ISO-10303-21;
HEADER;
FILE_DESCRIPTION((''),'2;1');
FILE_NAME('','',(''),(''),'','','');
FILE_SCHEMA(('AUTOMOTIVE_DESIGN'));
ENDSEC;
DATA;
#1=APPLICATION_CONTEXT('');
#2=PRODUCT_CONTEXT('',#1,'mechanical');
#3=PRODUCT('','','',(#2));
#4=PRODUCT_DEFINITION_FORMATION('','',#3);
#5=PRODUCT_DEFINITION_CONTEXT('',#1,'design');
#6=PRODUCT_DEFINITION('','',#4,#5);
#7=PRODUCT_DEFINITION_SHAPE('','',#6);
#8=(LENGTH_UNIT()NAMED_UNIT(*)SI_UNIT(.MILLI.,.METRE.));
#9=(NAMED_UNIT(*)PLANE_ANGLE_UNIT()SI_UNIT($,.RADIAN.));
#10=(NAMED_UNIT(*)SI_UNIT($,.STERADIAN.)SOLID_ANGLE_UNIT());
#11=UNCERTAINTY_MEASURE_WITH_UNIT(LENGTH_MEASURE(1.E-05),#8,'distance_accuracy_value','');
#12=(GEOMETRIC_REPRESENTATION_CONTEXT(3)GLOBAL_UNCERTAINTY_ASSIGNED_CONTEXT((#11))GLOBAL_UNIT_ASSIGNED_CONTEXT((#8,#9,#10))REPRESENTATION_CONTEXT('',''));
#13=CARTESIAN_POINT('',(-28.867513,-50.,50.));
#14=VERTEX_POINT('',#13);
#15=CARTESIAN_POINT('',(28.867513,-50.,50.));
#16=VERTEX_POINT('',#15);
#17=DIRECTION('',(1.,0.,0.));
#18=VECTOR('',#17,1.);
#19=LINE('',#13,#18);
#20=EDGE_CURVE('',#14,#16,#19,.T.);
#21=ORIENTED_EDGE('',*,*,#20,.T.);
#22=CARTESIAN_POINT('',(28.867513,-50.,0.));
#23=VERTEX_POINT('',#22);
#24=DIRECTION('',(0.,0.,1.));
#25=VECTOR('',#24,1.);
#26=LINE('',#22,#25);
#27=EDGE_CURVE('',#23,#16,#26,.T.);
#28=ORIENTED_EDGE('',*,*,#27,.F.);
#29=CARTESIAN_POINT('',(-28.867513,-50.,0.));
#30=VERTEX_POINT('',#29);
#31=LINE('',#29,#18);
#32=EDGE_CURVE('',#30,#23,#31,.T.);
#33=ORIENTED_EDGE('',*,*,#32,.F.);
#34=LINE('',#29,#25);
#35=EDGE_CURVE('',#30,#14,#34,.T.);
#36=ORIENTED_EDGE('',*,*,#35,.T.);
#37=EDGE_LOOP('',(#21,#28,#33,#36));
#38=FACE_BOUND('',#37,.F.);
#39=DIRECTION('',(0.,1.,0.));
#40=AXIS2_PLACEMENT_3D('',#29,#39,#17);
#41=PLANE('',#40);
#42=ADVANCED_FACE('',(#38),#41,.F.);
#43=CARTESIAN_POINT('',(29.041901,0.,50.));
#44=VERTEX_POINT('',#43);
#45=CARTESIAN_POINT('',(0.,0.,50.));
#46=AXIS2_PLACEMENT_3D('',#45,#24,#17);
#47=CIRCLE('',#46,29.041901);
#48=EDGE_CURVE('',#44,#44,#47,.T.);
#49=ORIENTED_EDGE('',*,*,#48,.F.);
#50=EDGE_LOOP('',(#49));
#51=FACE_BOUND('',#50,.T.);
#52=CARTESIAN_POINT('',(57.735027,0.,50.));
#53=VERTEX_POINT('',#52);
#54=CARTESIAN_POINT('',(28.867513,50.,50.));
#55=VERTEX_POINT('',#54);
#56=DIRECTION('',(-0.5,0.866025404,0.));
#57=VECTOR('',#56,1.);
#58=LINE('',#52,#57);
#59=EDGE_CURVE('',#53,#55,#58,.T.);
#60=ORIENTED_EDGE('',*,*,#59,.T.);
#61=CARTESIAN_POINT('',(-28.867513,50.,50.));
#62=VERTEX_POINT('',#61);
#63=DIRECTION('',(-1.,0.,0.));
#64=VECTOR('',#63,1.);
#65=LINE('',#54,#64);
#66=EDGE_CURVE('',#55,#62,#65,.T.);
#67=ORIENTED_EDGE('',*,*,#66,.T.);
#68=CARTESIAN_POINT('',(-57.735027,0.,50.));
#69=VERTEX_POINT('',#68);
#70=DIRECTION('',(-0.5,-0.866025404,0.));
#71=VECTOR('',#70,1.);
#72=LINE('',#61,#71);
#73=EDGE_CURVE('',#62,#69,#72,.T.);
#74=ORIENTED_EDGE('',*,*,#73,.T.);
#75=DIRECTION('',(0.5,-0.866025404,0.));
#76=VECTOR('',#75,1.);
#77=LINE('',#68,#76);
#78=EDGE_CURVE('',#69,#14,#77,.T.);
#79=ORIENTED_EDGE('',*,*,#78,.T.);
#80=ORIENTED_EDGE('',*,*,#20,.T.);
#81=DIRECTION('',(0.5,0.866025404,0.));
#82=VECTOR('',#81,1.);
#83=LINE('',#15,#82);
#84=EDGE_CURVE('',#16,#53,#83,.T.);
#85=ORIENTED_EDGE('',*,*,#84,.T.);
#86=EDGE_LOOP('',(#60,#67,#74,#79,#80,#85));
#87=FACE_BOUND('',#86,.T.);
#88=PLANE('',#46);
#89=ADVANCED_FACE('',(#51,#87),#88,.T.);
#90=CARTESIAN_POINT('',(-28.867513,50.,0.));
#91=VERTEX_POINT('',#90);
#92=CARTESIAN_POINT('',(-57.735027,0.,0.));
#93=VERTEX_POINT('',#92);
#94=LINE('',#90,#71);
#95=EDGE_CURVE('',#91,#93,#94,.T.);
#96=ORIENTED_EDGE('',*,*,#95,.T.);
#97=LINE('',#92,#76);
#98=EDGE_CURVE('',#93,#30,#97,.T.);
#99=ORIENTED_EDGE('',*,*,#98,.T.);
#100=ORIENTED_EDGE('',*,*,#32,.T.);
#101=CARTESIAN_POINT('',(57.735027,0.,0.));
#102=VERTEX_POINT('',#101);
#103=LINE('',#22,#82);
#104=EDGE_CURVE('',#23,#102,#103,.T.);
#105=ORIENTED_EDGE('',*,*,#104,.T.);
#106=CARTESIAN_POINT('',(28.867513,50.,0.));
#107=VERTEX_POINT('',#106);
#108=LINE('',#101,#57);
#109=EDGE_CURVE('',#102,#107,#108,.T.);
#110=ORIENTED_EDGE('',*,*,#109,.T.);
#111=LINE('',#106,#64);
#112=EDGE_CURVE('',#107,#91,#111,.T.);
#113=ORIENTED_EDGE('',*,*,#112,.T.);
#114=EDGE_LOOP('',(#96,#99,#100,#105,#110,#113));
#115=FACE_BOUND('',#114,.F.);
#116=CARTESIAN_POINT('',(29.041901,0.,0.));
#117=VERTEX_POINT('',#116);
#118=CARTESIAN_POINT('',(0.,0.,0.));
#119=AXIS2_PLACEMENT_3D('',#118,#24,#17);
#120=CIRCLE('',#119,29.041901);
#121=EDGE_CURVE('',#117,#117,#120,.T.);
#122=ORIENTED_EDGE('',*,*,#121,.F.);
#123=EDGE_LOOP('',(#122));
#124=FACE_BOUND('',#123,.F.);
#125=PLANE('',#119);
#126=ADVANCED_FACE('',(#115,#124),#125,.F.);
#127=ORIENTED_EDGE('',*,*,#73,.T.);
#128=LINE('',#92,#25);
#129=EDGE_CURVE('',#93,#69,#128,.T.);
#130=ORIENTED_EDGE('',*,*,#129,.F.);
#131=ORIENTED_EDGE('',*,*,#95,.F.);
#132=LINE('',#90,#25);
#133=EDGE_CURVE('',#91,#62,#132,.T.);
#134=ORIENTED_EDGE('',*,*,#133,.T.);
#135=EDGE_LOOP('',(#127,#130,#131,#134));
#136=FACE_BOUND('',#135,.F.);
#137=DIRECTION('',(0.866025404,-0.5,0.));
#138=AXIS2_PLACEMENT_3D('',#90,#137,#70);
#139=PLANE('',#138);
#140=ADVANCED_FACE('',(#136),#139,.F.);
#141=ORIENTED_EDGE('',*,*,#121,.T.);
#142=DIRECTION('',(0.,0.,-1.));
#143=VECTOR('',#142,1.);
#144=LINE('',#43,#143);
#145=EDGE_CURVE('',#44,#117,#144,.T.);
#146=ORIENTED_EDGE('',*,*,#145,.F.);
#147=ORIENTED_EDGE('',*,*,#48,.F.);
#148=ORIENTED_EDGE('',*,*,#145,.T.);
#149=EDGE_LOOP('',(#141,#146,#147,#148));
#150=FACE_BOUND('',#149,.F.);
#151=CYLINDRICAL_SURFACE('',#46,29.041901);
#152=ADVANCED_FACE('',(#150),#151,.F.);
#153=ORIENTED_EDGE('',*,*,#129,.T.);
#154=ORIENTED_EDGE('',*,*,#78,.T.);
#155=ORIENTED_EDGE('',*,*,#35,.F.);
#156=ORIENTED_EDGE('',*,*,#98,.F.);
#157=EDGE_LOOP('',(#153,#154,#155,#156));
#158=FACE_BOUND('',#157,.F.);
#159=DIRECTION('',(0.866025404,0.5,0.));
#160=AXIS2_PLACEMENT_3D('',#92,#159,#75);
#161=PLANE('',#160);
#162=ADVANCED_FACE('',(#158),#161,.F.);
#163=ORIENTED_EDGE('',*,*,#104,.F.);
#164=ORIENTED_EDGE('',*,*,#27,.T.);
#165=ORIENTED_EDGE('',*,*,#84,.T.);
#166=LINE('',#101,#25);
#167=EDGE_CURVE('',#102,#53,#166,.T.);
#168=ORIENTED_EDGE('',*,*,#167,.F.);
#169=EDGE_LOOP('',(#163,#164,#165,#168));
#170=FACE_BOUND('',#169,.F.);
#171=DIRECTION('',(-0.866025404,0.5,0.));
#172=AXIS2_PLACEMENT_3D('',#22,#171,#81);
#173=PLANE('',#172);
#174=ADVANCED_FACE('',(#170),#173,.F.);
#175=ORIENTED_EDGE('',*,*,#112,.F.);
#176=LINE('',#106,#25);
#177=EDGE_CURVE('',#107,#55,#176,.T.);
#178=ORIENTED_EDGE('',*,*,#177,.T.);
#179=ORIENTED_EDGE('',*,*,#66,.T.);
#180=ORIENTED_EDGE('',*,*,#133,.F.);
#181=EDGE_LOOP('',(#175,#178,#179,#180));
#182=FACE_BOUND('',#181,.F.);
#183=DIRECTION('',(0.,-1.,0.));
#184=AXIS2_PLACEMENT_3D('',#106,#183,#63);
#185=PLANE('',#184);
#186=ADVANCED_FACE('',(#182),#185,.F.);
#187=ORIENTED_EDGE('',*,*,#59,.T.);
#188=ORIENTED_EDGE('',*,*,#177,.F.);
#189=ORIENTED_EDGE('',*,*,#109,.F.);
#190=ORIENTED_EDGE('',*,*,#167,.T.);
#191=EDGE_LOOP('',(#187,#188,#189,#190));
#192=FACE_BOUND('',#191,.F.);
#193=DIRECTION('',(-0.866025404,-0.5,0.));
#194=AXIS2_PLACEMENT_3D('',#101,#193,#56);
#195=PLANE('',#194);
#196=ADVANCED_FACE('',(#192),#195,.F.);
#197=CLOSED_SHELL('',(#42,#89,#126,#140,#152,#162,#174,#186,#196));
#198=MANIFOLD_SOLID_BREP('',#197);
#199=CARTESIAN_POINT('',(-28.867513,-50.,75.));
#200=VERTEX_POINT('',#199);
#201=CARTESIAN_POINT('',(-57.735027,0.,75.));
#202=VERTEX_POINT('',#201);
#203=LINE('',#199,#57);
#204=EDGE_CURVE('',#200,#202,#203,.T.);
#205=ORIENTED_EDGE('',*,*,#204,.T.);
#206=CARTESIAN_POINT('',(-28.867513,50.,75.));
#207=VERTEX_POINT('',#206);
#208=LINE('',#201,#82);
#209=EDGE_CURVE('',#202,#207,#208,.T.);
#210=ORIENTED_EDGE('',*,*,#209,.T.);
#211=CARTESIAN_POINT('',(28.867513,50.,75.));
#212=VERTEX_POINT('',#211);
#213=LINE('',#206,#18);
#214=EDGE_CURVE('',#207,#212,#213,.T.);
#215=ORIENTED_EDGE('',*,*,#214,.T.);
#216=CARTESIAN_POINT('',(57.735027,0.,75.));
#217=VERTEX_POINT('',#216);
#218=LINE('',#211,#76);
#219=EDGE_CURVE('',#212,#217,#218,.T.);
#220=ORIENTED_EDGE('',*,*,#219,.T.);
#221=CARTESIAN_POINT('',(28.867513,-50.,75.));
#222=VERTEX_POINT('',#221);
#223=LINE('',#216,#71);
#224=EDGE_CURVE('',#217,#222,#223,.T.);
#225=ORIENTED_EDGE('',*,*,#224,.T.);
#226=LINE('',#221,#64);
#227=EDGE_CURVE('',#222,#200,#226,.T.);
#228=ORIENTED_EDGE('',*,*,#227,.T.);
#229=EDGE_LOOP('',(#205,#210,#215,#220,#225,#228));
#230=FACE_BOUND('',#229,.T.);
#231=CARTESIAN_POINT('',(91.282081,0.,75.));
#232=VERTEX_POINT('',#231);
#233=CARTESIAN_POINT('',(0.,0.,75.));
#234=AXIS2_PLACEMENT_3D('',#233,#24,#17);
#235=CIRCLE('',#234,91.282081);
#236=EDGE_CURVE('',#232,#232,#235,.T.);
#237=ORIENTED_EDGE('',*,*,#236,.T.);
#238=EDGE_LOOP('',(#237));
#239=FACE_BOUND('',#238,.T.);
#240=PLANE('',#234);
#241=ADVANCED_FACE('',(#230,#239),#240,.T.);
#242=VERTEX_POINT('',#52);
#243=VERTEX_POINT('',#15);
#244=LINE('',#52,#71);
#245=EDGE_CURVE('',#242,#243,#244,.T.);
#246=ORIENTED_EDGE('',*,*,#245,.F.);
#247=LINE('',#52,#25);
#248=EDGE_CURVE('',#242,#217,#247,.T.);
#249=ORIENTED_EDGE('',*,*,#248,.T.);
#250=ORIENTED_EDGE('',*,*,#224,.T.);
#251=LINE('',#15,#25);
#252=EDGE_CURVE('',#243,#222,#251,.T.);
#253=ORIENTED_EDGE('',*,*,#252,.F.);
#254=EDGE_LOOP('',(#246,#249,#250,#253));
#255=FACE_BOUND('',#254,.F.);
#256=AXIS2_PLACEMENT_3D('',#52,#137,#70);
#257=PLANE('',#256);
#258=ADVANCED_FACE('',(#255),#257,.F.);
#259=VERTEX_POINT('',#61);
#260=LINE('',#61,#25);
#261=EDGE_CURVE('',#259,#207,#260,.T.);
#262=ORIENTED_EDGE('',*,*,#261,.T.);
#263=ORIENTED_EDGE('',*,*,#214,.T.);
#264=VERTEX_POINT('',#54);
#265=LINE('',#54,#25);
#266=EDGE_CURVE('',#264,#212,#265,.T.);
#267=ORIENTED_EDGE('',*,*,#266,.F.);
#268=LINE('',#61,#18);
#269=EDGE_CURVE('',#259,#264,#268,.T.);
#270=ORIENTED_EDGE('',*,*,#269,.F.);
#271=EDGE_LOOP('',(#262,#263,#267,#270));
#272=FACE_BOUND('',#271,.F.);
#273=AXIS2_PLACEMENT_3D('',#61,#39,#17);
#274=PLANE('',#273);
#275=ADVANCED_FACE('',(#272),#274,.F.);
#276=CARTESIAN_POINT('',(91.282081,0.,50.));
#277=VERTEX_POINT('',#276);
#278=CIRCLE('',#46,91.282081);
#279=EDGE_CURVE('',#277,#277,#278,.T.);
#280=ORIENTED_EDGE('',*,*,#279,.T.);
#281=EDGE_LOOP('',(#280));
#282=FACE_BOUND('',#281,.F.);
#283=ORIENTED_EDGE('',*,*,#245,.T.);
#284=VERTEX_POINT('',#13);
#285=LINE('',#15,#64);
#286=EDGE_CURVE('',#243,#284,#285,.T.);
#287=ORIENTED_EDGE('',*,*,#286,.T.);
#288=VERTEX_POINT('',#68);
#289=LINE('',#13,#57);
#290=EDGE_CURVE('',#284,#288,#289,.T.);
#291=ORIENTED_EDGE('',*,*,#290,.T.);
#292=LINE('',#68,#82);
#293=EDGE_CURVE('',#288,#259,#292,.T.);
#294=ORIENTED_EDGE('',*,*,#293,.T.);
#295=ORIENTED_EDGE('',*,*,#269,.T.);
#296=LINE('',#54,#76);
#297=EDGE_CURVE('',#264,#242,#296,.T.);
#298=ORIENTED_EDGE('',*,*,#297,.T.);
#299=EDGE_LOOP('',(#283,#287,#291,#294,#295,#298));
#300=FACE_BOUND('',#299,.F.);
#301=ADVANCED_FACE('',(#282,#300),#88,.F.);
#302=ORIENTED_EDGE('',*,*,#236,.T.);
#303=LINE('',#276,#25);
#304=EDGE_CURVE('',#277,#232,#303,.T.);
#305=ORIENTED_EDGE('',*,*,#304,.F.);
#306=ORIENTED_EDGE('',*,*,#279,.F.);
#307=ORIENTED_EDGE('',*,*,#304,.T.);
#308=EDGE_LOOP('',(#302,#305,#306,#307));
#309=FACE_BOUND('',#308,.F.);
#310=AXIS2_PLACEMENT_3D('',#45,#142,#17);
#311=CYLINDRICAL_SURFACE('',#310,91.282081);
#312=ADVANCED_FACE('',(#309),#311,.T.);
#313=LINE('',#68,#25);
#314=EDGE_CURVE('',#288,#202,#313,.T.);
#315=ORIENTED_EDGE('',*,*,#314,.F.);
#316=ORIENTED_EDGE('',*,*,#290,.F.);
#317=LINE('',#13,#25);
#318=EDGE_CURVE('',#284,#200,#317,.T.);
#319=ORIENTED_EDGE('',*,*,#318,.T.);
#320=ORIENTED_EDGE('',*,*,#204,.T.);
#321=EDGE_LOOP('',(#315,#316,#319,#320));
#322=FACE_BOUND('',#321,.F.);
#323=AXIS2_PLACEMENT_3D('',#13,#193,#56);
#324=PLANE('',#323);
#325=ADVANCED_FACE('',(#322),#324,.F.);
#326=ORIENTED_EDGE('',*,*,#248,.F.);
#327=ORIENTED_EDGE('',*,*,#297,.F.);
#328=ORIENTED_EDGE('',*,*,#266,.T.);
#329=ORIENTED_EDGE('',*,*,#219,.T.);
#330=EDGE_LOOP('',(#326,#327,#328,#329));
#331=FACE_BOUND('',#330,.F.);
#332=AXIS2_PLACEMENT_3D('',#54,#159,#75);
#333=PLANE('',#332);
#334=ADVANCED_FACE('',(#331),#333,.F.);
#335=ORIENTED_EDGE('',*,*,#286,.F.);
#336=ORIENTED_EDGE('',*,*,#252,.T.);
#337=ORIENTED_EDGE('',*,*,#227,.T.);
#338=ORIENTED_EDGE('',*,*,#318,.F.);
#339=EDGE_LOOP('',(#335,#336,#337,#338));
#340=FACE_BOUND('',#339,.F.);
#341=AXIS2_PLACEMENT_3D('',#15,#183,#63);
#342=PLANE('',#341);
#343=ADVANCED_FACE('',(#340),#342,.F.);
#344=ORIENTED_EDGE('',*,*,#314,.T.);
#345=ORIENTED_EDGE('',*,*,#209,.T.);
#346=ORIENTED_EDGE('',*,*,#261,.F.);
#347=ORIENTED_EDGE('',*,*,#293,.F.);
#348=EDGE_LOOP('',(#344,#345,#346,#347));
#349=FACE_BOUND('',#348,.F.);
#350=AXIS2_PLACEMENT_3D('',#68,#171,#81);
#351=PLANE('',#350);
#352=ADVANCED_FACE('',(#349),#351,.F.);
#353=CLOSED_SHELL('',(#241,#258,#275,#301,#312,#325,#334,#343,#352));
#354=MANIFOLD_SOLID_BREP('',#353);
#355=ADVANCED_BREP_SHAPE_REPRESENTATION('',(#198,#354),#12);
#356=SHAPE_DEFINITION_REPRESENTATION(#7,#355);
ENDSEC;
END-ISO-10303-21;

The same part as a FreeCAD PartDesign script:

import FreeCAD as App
import Part
import Sketcher
Q = App.Units.Quantity


def add_polygon(sketch, points):
    """Adds a closed chain of lines whose ends are joined by coincident constraints."""
    first, n = sketch.GeometryCount, len(points)
    for a, b in zip(points, points[1:] + points[:1]):
        sketch.addGeometry(Part.LineSegment(App.Vector(*a, 0), App.Vector(*b, 0)), False)
    for i in range(n):
        sketch.addConstraint(Sketcher.Constraint("Coincident", first + i, 2, first + (i + 1) % n, 1))

doc = App.newDocument("Part")
params = doc.addObject("Spreadsheet::Sheet", "Params")
for row, (alias, value) in enumerate([
    ("pad1_length", "50 mm"),
    ("pad2_length", "25 mm"),
], start=1):
    params.set(f"A{row}", alias)
    params.set(f"B{row}", "=" + value)
    params.setAlias(f"B{row}", alias)

body = doc.addObject("PartDesign::Body", "Body")

# Sketch on XY plane
sketch1 = body.newObject("Sketcher::SketchObject", "Sketch")
sketch1.AttachmentSupport = (doc.getObject("XY_Plane"), [""])
sketch1.MapMode = "FlatFace"
add_polygon(sketch1, [(29, 50), (-29, 50), (-58, 0), (-29, -50), (29, -50), (58, 0)])  # lines 0-5
sketch1.addConstraint(Sketcher.Constraint("Horizontal", 0))
sketch1.addConstraint(Sketcher.Constraint("Horizontal", 3))
sketch1.addConstraint(Sketcher.Constraint("Symmetric", 0, 2, 3, 2, -1, 1))
sketch1.addConstraint(Sketcher.Constraint("Symmetric", 1, 2, 4, 2, -1, 1))
sketch1.addConstraint(Sketcher.Constraint("PointOnObject", 1, 2, -1))
sketch1.addConstraint(Sketcher.Constraint("Parallel", 2, 5))
sketch1.addConstraint(Sketcher.Constraint("Vertical", 0, 2, 2, 2))
sketch1.addConstraint(Sketcher.Constraint("Angle", 1, Q("-120 deg")))
sketch1.addConstraint(Sketcher.Constraint("DistanceY", -1, 1, 0, 2, 50.0))
sketch1.addConstraint(Sketcher.Constraint("DistanceX", 0, 2, 0, 1, 57.735027))
pad1 = body.newObject("PartDesign::Pad", "Pad")
pad1.Profile = sketch1
pad1.setExpression("Length", "Params.pad1_length")

# Sketch on XY plane
sketch2 = body.newObject("Sketcher::SketchObject", "Sketch001")
sketch2.AttachmentSupport = (doc.getObject("XY_Plane"), [""])
sketch2.MapMode = "FlatFace"
sketch2.AttachmentOffset = App.Placement(App.Vector(0, 0, 50), App.Rotation())
sketch2.addGeometry(Part.Circle(App.Vector(0, 0, 0), App.Vector(0, 0, 1), 29), False)
sketch2.addConstraint(Sketcher.Constraint("Coincident", 0, 3, -1, 1))
sketch2.addConstraint(Sketcher.Constraint("Diameter", 0, 58.083803))
pocket1 = body.newObject("PartDesign::Pocket", "Pocket")
pocket1.Profile = sketch2
pocket1.Type = "ThroughAll"
body2 = doc.addObject("PartDesign::Body", "Body001")

# Sketch on XY plane
sketch3 = body2.newObject("Sketcher::SketchObject", "Sketch002")
sketch3.AttachmentSupport = (doc.getObject("XY_Plane001"), [""])
sketch3.MapMode = "FlatFace"
sketch3.AttachmentOffset = App.Placement(App.Vector(0, 0, 50), App.Rotation())
sketch3.addGeometry(Part.Circle(App.Vector(0, 0, 0), App.Vector(0, 0, 1), 91), False)  # 0
add_polygon(sketch3, [(-29, 50), (29, 50), (58, 0), (29, -50), (-29, -50), (-58, 0)])  # lines 1-6
sketch3.addConstraint(Sketcher.Constraint("Horizontal", 1))
sketch3.addConstraint(Sketcher.Constraint("Horizontal", 4))
sketch3.addConstraint(Sketcher.Constraint("Coincident", 0, 3, -1, 1))
sketch3.addConstraint(Sketcher.Constraint("Symmetric", 1, 2, 4, 2, -1, 1))
sketch3.addConstraint(Sketcher.Constraint("Symmetric", 2, 2, 5, 2, -1, 1))
sketch3.addConstraint(Sketcher.Constraint("PointOnObject", 2, 2, -1))
sketch3.addConstraint(Sketcher.Constraint("Parallel", 3, 6))
sketch3.addConstraint(Sketcher.Constraint("Vertical", 1, 2, 3, 2))
sketch3.addConstraint(Sketcher.Constraint("Angle", 2, Q("-60 deg")))
sketch3.addConstraint(Sketcher.Constraint("DistanceY", -1, 1, 1, 2, 50.0))
sketch3.addConstraint(Sketcher.Constraint("Diameter", 0, 182.564162))
sketch3.addConstraint(Sketcher.Constraint("DistanceX", 1, 1, 1, 2, 57.735027))
pad2 = body2.newObject("PartDesign::Pad", "Pad001")
pad2.Profile = sketch3
pad2.setExpression("Length", "Params.pad2_length")

doc.recompute()
